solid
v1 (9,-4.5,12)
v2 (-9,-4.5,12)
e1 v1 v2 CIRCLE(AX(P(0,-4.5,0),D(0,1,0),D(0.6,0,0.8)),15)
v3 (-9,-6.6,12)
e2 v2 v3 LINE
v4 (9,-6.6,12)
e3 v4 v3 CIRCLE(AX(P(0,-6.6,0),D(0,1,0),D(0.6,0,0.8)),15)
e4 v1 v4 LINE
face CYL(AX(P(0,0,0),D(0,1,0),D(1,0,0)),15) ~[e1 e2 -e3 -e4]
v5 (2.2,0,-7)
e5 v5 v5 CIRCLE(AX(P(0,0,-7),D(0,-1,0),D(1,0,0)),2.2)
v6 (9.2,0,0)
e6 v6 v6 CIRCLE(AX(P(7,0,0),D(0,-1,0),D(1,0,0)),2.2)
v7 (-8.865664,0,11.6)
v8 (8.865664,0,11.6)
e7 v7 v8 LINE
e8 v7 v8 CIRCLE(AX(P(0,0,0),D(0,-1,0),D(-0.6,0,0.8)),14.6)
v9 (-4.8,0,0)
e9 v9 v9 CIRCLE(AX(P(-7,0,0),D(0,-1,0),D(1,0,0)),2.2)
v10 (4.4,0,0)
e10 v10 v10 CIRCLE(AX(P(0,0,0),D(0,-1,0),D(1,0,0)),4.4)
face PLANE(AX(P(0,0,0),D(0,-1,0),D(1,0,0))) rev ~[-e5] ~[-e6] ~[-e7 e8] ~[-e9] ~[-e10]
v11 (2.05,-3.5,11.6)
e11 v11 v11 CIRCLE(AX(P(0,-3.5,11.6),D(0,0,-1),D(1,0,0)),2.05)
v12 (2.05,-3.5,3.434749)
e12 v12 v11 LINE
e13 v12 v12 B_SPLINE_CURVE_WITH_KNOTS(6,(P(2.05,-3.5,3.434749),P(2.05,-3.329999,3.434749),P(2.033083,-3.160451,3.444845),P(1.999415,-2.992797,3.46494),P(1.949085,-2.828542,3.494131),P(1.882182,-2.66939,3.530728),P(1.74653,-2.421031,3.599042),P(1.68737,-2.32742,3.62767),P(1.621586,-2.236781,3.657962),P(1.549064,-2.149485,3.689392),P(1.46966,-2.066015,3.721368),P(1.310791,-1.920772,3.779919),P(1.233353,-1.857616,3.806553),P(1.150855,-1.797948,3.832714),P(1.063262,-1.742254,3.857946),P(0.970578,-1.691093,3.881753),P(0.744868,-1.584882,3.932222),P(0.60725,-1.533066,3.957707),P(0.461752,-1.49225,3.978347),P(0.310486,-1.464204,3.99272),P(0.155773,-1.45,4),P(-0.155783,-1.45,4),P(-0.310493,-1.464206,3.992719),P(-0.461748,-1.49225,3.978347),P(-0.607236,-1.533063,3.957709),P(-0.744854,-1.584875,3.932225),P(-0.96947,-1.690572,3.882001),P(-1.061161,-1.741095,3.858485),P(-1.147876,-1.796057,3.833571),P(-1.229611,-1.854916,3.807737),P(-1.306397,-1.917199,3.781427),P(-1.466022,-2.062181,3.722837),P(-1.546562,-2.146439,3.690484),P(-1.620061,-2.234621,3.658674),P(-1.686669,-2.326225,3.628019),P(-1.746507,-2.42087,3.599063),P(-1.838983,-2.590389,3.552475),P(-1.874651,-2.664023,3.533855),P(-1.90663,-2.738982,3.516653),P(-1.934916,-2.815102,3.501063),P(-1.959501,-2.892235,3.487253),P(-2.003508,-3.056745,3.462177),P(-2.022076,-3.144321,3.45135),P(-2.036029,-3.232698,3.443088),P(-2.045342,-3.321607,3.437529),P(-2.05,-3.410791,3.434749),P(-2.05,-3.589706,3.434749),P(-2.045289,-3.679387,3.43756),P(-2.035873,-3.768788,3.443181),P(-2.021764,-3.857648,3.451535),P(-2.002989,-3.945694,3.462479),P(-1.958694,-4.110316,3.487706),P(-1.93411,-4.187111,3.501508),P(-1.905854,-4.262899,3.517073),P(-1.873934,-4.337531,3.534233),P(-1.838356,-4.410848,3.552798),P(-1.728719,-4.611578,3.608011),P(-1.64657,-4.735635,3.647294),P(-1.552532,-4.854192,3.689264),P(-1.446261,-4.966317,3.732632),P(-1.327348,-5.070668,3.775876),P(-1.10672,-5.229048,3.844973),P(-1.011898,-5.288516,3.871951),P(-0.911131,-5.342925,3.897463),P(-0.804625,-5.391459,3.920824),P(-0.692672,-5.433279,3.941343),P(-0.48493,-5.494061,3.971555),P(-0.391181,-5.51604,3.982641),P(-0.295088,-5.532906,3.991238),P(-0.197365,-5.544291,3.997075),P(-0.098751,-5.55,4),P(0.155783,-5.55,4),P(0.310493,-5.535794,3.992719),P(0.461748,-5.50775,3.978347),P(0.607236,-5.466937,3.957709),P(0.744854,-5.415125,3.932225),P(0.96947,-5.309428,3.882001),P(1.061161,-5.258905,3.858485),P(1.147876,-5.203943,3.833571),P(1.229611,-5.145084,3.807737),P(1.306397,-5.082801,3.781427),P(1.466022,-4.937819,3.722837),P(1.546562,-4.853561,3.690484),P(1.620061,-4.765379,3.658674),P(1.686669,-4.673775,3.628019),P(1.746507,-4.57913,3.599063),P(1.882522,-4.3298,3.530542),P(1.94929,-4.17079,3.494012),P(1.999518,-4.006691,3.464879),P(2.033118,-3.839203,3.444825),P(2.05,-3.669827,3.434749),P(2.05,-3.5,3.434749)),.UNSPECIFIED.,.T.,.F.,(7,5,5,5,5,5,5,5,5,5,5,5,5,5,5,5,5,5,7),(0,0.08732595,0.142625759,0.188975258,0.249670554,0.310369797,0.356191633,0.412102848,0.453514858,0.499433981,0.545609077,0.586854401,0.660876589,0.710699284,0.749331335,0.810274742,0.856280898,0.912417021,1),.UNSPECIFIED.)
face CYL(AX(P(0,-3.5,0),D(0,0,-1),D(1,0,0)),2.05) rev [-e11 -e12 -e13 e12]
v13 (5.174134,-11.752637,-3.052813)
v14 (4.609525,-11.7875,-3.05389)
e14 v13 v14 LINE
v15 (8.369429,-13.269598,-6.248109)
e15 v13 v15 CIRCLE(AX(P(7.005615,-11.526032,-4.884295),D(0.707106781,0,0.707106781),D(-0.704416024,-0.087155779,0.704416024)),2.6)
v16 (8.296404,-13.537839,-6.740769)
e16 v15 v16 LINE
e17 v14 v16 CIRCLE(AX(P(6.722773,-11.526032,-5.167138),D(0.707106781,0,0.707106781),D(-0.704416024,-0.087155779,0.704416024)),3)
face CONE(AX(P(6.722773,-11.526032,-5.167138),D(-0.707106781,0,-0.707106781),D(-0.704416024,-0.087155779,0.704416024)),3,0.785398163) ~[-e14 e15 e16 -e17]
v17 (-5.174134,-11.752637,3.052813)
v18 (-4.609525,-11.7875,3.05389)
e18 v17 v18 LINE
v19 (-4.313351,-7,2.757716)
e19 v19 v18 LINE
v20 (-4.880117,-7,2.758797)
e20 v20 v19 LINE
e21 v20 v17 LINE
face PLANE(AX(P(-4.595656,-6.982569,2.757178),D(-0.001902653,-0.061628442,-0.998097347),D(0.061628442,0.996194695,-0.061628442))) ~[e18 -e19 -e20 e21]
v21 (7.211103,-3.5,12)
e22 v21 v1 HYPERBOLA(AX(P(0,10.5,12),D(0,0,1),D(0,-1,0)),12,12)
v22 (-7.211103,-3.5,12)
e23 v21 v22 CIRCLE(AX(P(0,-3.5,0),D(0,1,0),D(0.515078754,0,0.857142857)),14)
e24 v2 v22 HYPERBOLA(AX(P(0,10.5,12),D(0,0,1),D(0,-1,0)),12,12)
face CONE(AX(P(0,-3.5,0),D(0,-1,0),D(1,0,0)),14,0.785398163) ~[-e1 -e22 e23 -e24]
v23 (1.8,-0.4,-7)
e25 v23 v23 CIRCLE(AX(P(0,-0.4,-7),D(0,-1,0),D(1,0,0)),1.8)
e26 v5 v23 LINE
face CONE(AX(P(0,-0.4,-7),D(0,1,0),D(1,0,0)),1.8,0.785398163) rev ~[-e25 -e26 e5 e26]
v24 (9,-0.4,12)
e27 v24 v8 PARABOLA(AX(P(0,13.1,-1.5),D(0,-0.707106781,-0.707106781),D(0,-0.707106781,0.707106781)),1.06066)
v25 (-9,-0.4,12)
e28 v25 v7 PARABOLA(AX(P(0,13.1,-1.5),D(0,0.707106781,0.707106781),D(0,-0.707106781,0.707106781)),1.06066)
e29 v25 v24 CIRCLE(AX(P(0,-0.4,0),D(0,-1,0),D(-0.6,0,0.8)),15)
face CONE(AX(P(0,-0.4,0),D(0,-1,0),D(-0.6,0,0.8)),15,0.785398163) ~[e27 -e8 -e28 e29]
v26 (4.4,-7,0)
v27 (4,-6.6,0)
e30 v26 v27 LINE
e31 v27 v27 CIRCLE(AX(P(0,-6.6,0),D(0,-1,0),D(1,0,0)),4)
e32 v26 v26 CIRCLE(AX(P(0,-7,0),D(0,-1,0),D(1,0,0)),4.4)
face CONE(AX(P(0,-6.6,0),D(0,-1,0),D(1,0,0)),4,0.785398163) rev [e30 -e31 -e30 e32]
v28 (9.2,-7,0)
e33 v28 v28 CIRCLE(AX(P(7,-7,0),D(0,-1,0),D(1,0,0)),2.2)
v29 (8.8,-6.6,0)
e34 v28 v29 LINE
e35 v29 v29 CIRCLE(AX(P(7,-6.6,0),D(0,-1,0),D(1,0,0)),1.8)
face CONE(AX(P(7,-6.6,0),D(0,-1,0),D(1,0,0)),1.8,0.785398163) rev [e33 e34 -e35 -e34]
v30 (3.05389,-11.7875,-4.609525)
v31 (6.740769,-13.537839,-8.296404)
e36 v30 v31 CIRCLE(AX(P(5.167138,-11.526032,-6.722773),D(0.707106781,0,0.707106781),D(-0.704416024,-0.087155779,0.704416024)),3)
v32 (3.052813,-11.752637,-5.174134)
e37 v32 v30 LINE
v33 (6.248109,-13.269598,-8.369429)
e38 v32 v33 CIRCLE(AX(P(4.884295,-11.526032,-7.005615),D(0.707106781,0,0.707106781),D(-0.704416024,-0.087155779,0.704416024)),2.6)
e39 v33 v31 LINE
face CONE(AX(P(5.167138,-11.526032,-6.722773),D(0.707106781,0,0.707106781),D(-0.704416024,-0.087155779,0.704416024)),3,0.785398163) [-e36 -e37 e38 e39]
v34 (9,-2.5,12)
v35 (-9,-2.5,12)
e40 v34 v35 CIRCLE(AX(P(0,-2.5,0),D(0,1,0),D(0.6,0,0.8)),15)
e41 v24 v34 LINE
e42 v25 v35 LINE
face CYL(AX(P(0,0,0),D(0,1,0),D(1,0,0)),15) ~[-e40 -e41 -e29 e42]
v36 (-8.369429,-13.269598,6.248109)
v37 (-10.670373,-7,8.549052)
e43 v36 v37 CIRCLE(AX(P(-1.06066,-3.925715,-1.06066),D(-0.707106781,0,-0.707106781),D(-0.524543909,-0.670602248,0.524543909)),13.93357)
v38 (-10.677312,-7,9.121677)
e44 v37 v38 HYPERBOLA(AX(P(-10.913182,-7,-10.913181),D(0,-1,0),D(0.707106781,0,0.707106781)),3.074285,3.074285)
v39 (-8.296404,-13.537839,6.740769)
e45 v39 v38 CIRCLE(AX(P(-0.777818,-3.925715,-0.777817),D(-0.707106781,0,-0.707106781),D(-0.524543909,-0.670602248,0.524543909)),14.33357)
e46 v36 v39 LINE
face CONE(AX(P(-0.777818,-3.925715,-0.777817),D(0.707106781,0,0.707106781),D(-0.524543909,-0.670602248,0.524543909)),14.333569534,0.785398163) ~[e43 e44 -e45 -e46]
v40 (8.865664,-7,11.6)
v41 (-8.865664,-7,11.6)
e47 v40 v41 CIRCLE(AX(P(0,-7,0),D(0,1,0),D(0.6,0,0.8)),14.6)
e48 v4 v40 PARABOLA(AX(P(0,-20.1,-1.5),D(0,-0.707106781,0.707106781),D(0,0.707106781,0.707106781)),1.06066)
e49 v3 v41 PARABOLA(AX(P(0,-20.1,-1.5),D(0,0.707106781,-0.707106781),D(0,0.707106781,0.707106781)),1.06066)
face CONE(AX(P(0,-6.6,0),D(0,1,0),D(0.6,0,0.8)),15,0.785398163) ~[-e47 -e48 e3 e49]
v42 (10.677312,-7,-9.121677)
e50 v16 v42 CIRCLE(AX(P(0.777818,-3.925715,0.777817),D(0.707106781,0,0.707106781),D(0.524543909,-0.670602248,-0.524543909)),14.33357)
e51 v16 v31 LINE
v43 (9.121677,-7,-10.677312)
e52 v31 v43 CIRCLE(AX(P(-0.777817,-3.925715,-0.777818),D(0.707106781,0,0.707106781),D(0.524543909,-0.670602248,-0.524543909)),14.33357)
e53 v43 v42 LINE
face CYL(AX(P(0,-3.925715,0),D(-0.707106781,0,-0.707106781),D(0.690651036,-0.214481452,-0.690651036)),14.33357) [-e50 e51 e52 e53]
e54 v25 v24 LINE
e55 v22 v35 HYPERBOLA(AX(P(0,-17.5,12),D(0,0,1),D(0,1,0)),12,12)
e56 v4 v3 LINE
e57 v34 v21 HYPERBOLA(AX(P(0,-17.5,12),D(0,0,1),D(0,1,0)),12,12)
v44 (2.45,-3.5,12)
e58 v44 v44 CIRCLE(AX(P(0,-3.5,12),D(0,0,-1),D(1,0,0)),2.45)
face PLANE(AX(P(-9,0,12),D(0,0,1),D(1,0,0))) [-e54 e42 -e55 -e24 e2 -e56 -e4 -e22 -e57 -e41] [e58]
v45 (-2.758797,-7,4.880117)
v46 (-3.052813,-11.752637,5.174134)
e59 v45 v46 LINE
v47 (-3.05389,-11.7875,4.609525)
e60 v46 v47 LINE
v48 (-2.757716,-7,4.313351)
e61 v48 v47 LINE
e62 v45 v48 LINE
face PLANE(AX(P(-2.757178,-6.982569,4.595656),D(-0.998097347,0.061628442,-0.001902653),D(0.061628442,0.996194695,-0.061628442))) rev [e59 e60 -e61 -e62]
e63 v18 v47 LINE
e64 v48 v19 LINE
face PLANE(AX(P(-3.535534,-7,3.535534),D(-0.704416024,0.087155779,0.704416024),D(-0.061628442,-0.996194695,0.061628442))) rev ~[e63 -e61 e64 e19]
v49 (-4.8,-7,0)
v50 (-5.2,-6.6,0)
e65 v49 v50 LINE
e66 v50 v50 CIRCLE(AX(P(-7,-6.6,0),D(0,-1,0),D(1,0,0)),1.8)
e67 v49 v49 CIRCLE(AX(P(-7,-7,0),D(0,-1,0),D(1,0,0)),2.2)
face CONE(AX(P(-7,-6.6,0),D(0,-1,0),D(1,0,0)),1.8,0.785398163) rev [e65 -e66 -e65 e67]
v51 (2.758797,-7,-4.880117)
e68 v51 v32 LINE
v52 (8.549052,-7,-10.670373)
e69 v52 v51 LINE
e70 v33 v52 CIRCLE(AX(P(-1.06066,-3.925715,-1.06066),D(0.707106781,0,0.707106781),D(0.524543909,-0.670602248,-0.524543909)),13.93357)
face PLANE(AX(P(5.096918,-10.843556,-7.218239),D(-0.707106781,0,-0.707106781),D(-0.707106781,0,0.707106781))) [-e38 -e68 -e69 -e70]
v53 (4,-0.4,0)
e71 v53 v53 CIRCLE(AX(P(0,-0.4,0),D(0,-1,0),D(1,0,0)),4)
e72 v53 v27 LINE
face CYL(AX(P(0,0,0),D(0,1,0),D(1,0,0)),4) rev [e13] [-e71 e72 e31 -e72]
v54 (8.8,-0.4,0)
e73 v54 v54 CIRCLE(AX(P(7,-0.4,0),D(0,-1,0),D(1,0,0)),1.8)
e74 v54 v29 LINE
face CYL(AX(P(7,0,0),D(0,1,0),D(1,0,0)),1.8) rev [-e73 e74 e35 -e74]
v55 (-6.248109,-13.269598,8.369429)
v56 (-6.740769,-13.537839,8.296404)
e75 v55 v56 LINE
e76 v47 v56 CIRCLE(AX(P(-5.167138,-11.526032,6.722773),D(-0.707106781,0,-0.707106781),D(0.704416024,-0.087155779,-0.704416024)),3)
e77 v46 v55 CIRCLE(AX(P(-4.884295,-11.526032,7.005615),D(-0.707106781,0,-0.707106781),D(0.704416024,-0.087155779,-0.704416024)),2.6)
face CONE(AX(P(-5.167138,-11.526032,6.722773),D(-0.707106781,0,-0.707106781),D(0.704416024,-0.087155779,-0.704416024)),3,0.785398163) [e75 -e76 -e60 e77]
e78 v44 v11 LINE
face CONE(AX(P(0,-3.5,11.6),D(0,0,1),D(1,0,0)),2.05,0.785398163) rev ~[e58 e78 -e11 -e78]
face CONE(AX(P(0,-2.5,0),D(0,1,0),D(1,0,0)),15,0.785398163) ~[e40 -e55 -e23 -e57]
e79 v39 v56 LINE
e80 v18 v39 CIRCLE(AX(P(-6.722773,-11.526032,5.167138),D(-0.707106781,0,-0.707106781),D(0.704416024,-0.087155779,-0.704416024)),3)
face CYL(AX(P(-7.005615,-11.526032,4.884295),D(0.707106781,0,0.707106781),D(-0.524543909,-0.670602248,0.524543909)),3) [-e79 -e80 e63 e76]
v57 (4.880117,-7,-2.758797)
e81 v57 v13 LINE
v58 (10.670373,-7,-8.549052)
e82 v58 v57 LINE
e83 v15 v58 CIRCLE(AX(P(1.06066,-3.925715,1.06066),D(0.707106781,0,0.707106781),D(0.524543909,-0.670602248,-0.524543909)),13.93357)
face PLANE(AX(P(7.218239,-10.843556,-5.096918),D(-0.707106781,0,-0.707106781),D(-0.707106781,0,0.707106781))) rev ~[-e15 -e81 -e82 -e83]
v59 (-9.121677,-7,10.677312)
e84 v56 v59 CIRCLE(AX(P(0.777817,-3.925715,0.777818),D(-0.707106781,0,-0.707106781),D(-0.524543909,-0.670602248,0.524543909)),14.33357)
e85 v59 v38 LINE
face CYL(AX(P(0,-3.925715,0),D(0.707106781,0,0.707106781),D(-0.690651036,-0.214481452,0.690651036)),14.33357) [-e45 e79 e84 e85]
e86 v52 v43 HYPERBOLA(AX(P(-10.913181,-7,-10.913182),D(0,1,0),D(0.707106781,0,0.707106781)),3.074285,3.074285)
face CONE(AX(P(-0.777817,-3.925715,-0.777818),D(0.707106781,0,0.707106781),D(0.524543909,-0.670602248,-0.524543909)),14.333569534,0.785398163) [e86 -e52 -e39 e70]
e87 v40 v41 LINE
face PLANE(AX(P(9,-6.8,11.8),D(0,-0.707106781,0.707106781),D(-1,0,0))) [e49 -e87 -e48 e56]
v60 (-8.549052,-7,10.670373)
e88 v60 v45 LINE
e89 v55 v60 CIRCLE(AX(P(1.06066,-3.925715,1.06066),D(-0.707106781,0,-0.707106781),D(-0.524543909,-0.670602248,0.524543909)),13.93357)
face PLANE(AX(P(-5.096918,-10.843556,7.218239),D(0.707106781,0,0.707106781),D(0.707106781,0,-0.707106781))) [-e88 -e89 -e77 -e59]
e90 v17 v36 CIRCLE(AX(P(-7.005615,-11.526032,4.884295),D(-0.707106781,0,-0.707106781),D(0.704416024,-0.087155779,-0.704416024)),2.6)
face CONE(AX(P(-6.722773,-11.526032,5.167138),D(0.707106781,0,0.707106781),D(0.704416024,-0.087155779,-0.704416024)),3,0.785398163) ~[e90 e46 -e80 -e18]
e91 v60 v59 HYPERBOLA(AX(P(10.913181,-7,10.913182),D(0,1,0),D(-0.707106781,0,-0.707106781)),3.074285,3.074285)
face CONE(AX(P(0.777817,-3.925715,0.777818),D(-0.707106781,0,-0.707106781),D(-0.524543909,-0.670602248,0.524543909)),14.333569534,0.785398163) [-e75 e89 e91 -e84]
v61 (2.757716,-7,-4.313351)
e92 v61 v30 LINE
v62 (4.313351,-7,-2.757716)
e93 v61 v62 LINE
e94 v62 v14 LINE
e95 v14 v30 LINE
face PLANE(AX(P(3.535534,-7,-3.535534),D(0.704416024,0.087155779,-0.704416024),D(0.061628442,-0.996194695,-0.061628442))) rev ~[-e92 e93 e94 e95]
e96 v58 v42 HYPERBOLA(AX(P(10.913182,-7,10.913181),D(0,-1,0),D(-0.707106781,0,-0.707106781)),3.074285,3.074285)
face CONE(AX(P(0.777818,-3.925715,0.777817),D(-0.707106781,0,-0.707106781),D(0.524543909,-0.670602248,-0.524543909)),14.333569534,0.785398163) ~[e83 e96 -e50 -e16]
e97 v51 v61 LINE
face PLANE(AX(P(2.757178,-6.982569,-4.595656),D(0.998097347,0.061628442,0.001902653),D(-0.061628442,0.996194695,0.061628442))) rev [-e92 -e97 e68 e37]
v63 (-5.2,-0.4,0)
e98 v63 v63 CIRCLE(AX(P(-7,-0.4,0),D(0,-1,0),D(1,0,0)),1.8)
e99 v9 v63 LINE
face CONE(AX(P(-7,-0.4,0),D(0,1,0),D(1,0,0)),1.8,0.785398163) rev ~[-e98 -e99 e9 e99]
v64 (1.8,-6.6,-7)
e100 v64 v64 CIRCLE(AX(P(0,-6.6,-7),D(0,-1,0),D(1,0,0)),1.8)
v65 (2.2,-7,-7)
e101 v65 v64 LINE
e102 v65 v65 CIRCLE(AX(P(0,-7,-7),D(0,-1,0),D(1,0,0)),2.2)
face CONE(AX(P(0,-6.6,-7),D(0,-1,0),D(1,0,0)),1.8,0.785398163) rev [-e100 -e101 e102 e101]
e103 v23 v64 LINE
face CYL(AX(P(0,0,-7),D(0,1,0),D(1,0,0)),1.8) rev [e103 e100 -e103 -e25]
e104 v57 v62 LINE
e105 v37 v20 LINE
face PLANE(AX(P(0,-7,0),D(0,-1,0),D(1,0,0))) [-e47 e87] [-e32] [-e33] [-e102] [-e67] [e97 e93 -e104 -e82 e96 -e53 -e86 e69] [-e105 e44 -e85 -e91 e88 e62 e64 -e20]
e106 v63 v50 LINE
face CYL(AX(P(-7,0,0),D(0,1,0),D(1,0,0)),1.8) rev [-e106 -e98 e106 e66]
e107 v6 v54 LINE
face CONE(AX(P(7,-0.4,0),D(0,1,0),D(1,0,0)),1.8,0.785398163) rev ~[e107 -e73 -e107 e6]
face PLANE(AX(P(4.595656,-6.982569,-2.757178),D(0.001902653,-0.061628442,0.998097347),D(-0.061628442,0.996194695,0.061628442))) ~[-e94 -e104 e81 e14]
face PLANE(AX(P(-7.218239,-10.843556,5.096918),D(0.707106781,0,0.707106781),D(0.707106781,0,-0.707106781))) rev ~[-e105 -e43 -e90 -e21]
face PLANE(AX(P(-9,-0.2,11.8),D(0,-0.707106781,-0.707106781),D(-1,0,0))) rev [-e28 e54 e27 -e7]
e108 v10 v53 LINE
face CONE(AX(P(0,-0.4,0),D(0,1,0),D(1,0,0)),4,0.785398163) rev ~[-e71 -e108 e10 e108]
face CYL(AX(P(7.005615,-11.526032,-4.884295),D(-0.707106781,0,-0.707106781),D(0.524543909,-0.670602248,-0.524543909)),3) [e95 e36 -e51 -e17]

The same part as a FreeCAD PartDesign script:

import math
import FreeCAD as App
import Part
import Sketcher
Q = App.Units.Quantity


def edges_at(feature, points):
    """Names of the edges that pass closest to the given points."""
    edges = feature.Shape.Edges
    near = lambda p: min(range(len(edges)), key=lambda i: edges[i].distToShape(Part.Vertex(*p))[0])
    return sorted({f"Edge{near(p) + 1}" for p in points})

doc = App.newDocument("Part")
body = doc.addObject("PartDesign::Body", "Body")

# Sketch on XZ plane
sketch1 = body.newObject("Sketcher::SketchObject", "Sketch")
sketch1.AttachmentSupport = (doc.getObject("XZ_Plane"), [""])
sketch1.MapMode = "FlatFace"
sketch1.addGeometry([
    Part.Circle(App.Vector(0, 0, 0), App.Vector(0, 0, 1), 15),  # 0
    Part.Circle(App.Vector(0, -7, 0), App.Vector(0, 0, 1), 1.8),  # 1
    Part.Circle(App.Vector(-7, 0, 0), App.Vector(0, 0, 1), 1.8),  # 2
    Part.Circle(App.Vector(0, 0, 0), App.Vector(0, 0, 1), 4),  # 3
    Part.Circle(App.Vector(7, 0, 0), App.Vector(0, 0, 1), 1.8),  # 4
], False)
sketch1.addConstraint([
    Sketcher.Constraint("Coincident", 0, 3, -1, 1),
    Sketcher.Constraint("Coincident", 3, 3, -1, 1),
    Sketcher.Constraint("Equal", 1, 2),
    Sketcher.Constraint("Equal", 2, 4),
    Sketcher.Constraint("Symmetric", 2, 3, 4, 3, -1, 1),
    Sketcher.Constraint("PointOnObject", 1, 3, -2),
    Sketcher.Constraint("PointOnObject", 2, 3, -1),
    Sketcher.Constraint("Diameter", 0, Q("30 mm")),
    Sketcher.Constraint("Diameter", 3, Q("8 mm")),
    Sketcher.Constraint("Diameter", 1, Q("3.6 mm")),
    Sketcher.Constraint("DistanceY", 1, 3, -1, 1, Q("7 mm")),
    Sketcher.Constraint("DistanceX", 2, 3, -1, 1, Q("7 mm")),
])
pad1 = body.newObject("PartDesign::Pad", "Pad")
pad1.Profile = sketch1
pad1.Length = 7

# Sketch on XY plane
sketch2 = body.newObject("Sketcher::SketchObject", "Sketch001")
sketch2.AttachmentSupport = (doc.getObject("XY_Plane"), [""])
sketch2.MapMode = "FlatFace"
sketch2.addGeometry([
    Part.LineSegment(App.Vector(15, -2.5, 0), App.Vector(14, -3.5, 0)),
    Part.LineSegment(App.Vector(14, -3.5, 0), App.Vector(15, -4.5, 0)),
    Part.LineSegment(App.Vector(15, -4.5, 0), App.Vector(15, -2.5, 0)),
], False)
sketch2.addConstraint([
    Sketcher.Constraint("Coincident", 0, 2, 1, 1),
    Sketcher.Constraint("Coincident", 1, 2, 2, 1),
    Sketcher.Constraint("Coincident", 2, 2, 0, 1),
    Sketcher.Constraint("Vertical", 2),
    Sketcher.Constraint("Perpendicular", 0, 1),
    Sketcher.Constraint("Equal", 0, 1),
    Sketcher.Constraint("DistanceY", 2, 1, 2, 2, Q("2 mm")),
    Sketcher.Constraint("DistanceX", -1, 1, 0, 2, Q("14 mm")),
    Sketcher.Constraint("DistanceY", 0, 2, -1, 1, Q("3.5 mm")),
])
groove = body.newObject("PartDesign::Groove", "Groove")
groove.Profile = sketch2
groove.ReferenceAxis = (sketch2, ["V_Axis"])
groove.Angle = 360

# Sketch on XZ plane
sketch3 = body.newObject("Sketcher::SketchObject", "Sketch002")
sketch3.AttachmentSupport = (doc.getObject("XZ_Plane"), [""])
sketch3.MapMode = "FlatFace"
sketch3.addGeometry([
    Part.LineSegment(App.Vector(-9, 15, 0), App.Vector(-9, 12, 0)),
    Part.LineSegment(App.Vector(-9, 12, 0), App.Vector(9, 12, 0)),
    Part.LineSegment(App.Vector(9, 12, 0), App.Vector(9, 15, 0)),
    Part.LineSegment(App.Vector(9, 15, 0), App.Vector(-9, 15, 0)),
], False)
sketch3.addConstraint([
    Sketcher.Constraint("Coincident", 0, 2, 1, 1),
    Sketcher.Constraint("Coincident", 1, 2, 2, 1),
    Sketcher.Constraint("Coincident", 2, 2, 3, 1),
    Sketcher.Constraint("Coincident", 3, 2, 0, 1),
    Sketcher.Constraint("Vertical", 0),
    Sketcher.Constraint("Horizontal", 1),
    Sketcher.Constraint("Vertical", 2),
    Sketcher.Constraint("Horizontal", 3),
    Sketcher.Constraint("DistanceX", 1, 1, 1, 2, Q("18 mm")),
    Sketcher.Constraint("DistanceY", 0, 2, 0, 1, Q("3 mm")),
    Sketcher.Constraint("DistanceX", 0, 2, -1, 1, Q("9 mm")),
    Sketcher.Constraint("DistanceY", -1, 1, 0, 2, Q("12 mm")),
])
pocket1 = body.newObject("PartDesign::Pocket", "Pocket")
pocket1.Profile = sketch3
pocket1.Type = "ThroughAll"
pocket1.Reversed = True

# Sketch on XY plane
sketch4 = body.newObject("Sketcher::SketchObject", "Sketch003")
sketch4.AttachmentSupport = (doc.getObject("XY_Plane"), [""])
sketch4.MapMode = "FlatFace"
sketch4.addGeometry(Part.Circle(App.Vector(0, -3.5, 0), App.Vector(0, 0, 1), 2), False)
sketch4.addConstraint([
    Sketcher.Constraint("PointOnObject", 0, 3, -2),
    Sketcher.Constraint("Diameter", 0, Q("4.1 mm")),
    Sketcher.Constraint("DistanceY", 0, 3, -1, 1, Q("3.5 mm")),
])
pocket2 = body.newObject("PartDesign::Pocket", "Pocket001")
pocket2.Profile = sketch4
pocket2.Type = "ThroughAll"
pocket2.Reversed = True
doc.recompute()

chamfer = body.newObject("PartDesign::Chamfer", "Chamfer")
chamfer.Base = (pocket2, edges_at(pocket2, [
    (-2.05, -3.5, 12),
    (0, 0, -15),
    (0, 0, 12),
    (0, 0, -15),
    (-8.8, 0, 0),
    (-1.8, 0, -7),
    (-4, 0, 0),
    (5.2, 0, 0),
    (0, -7, -15),
    (0, -7, 12),
    (0, -7, -15),
    (-8.8, -7, 0),
    (-1.8, -7, -7),
    (-4, -7, 0),
    (5.2, -7, 0),
]))
chamfer.Size = 0.4

# Sketch on an angled plane
sketch5 = body.newObject("Sketcher::SketchObject", "Sketch004")
sketch5.Placement = App.Placement(App.Vector(0, 0, 0), App.Rotation(App.Vector(0.707106781, 0, -0.707106781), App.Vector(0, 0.999999999, 0), App.Vector(0.707106781, 0, 0.707106781), "ZXY"))
sketch5.addGeometry([
    Part.ArcOfCircle(Part.Circle(App.Vector(0, -4, 0), App.Vector(0, 0, 1), 14), math.radians(-168), math.radians(-114)),
    Part.LineSegment(App.Vector(-6, -17, 0), App.Vector(-5, -7, 0)),
    Part.LineSegment(App.Vector(-5, -7, 0), App.Vector(-14, -7, 0)),
], False)
sketch5.addConstraint([
    Sketcher.Constraint("Coincident", 0, 2, 1, 1),
    Sketcher.Constraint("Coincident", 1, 2, 2, 1),
    Sketcher.Constraint("Coincident", 2, 2, 0, 1),
    Sketcher.Constraint("Horizontal", 2),
    Sketcher.Constraint("PointOnObject", 0, 3, -2),
    Sketcher.Constraint("DistanceX", 2, 2, 2, 1, Q("9 mm")),
    Sketcher.Constraint("Angle", 1, Q("84.999998 deg")),
    Sketcher.Constraint("DistanceY", 0, 2, -1, 1, Q("17 mm")),
    Sketcher.Constraint("DistanceX", 1, 2, -1, 1, Q("5 mm")),
    Sketcher.Constraint("DistanceY", 1, 2, -1, 1, Q("7 mm")),
])
pad2 = body.newObject("PartDesign::Pad", "Pad001")
pad2.Profile = sketch5
pad2.Length = 3
pad2.Midplane = True
doc.recompute()

polarpattern = body.newObject("PartDesign::PolarPattern", "PolarPattern")
polarpattern.Originals = [pad2]
polarpattern.Axis = (doc.getObject("Y_Axis"), [""])
polarpattern.Angle = 360
polarpattern.Occurrences = 2
body.Tip = polarpattern
doc.recompute()

fillet = body.newObject("PartDesign::Fillet", "Fillet")
fillet.Base = (polarpattern, edges_at(polarpattern, [(-4.154, -17, 4.154), (4.154, -17, -4.154)]))
fillet.Radius = 3
doc.recompute()

chamfer2 = body.newObject("PartDesign::Chamfer", "Chamfer001")
chamfer2.Base = (fillet, edges_at(fillet, [
    (2.623, -9.394, -4.744),
    (4.744, -9.394, -2.623),
    (-4.744, -9.394, 2.623),
    (-2.623, -9.394, 4.744),
]))
chamfer2.Size = 0.4

doc.recompute()
